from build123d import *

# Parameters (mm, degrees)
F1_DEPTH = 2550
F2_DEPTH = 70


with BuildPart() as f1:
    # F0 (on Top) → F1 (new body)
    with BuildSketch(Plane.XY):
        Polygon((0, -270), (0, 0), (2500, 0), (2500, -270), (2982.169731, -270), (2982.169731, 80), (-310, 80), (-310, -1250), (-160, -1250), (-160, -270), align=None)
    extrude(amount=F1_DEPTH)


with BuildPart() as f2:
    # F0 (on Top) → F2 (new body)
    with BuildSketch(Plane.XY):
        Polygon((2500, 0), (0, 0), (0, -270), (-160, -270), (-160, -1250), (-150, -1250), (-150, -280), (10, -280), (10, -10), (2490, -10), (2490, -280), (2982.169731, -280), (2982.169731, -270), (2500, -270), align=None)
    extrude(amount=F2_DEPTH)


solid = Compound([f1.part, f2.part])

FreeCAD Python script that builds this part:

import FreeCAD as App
import Part
import Sketcher

V = App.Vector
Q = App.Units.Quantity

doc = App.newDocument("Part")
params = doc.addObject("Spreadsheet::Sheet", "Params")
for row, (alias, value) in enumerate([
    ("sketch1_width", "2500 mm"),
    ("sketch1_width2", "150 mm"),
    ("sketch1_width3", "160 mm"),
    ("sketch1_height", "270 mm"),
    ("sketch1_height2", "350 mm"),
    ("pad1_length", "2550 mm"),
    ("sketch2_width", "2500 mm"),
    ("sketch2_width2", "160 mm"),
    ("sketch2_width3", "10 mm"),
    ("sketch2_width4", "2480 mm"),
    ("sketch2_height", "270 mm"),
    ("pad2_length", "70 mm"),
], start=1):
    params.set(f"A{row}", alias)
    params.set(f"B{row}", "=" + value)
    params.setAlias(f"B{row}", alias)

body = doc.addObject("PartDesign::Body", "Body")

# Sketch on XY plane
sketch1 = body.newObject("Sketcher::SketchObject", "Sketch")
sketch1.AttachmentSupport = (doc.getObject("XY_Plane"), [""])
sketch1.MapMode = "FlatFace"
sketch1.addGeometry([
    Part.LineSegment(V(0, -270, 0), V(0, 0, 0)),  # 0
    Part.LineSegment(V(0, 0, 0), V(2500, 0, 0)),  # 1
    Part.LineSegment(V(2500, 0, 0), V(2500, -270, 0)),  # 2
    Part.LineSegment(V(2500, -270, 0), V(2982, -270, 0)),  # 3
    Part.LineSegment(V(2982, -270, 0), V(2982, 80, 0)),  # 4
    Part.LineSegment(V(2982, 80, 0), V(-310, 80, 0)),  # 5
    Part.LineSegment(V(-310, 80, 0), V(-310, -1250, 0)),  # 6
    Part.LineSegment(V(-310, -1250, 0), V(-160, -1250, 0)),  # 7
    Part.LineSegment(V(-160, -1250, 0), V(-160, -270, 0)),  # 8
    Part.LineSegment(V(-160, -270, 0), V(0, -270, 0)),  # 9
], False)
sketch1.addConstraint([
    Sketcher.Constraint("Coincident", 0, 2, 1, 1),
    Sketcher.Constraint("Coincident", 1, 2, 2, 1),
    Sketcher.Constraint("Coincident", 2, 2, 3, 1),
    Sketcher.Constraint("Coincident", 3, 2, 4, 1),
    Sketcher.Constraint("Coincident", 4, 2, 5, 1),
    Sketcher.Constraint("Coincident", 5, 2, 6, 1),
    Sketcher.Constraint("Coincident", 6, 2, 7, 1),
    Sketcher.Constraint("Coincident", 7, 2, 8, 1),
    Sketcher.Constraint("Coincident", 8, 2, 9, 1),
    Sketcher.Constraint("Coincident", 9, 2, 0, 1),
    Sketcher.Constraint("Vertical", 0),
    Sketcher.Constraint("Horizontal", 1),
    Sketcher.Constraint("Vertical", 2),
    Sketcher.Constraint("Horizontal", 3),
    Sketcher.Constraint("Vertical", 4),
    Sketcher.Constraint("Horizontal", 5),
    Sketcher.Constraint("Vertical", 6),
    Sketcher.Constraint("Horizontal", 7),
    Sketcher.Constraint("Vertical", 8),
    Sketcher.Constraint("Horizontal", 9),
    Sketcher.Constraint("Coincident", 0, 2, -1, 1),
    Sketcher.Constraint("Horizontal", 3, 2, 8, 2),
    Sketcher.Constraint("DistanceX", 1, 1, 1, 2, Q("2500 mm")),
    Sketcher.Constraint("DistanceX", 7, 1, 7, 2, Q("150 mm")),
    Sketcher.Constraint("DistanceX", 9, 1, 9, 2, Q("160 mm")),
    Sketcher.Constraint("DistanceY", 0, 1, 0, 2, Q("270 mm")),
    Sketcher.Constraint("DistanceY", 4, 1, 4, 2, Q("350 mm")),
    Sketcher.Constraint("DistanceY", 6, 2, 6, 1, Q("1330 mm")),
    Sketcher.Constraint("DistanceX", 3, 1, 3, 2, Q("482.169731 mm")),
])
sketch1.setExpression("Constraints[22]", "Params.sketch1_width")
sketch1.setExpression("Constraints[23]", "Params.sketch1_width2")
sketch1.setExpression("Constraints[24]", "Params.sketch1_width3")
sketch1.setExpression("Constraints[25]", "Params.sketch1_height")
sketch1.setExpression("Constraints[26]", "Params.sketch1_height2")
pad1 = body.newObject("PartDesign::Pad", "Pad")
pad1.Profile = sketch1
pad1.setExpression("Length", "Params.pad1_length")
body2 = doc.addObject("PartDesign::Body", "Body001")

# Sketch on XY plane
sketch2 = body2.newObject("Sketcher::SketchObject", "Sketch001")
sketch2.AttachmentSupport = (doc.getObject("XY_Plane001"), [""])
sketch2.MapMode = "FlatFace"
sketch2.addGeometry([
    Part.LineSegment(V(2500, 0, 0), V(0, 0, 0)),  # 0
    Part.LineSegment(V(0, 0, 0), V(0, -270, 0)),  # 1
    Part.LineSegment(V(0, -270, 0), V(-160, -270, 0)),  # 2
    Part.LineSegment(V(-160, -270, 0), V(-160, -1250, 0)),  # 3
    Part.LineSegment(V(-160, -1250, 0), V(-150, -1250, 0)),  # 4
    Part.LineSegment(V(-150, -1250, 0), V(-150, -280, 0)),  # 5
    Part.LineSegment(V(-150, -280, 0), V(10, -280, 0)),  # 6
    Part.LineSegment(V(10, -280, 0), V(10, -10, 0)),  # 7
    Part.LineSegment(V(10, -10, 0), V(2490, -10, 0)),  # 8
    Part.LineSegment(V(2490, -10, 0), V(2490, -280, 0)),  # 9
    Part.LineSegment(V(2490, -280, 0), V(2982, -280, 0)),  # 10
    Part.LineSegment(V(2982, -280, 0), V(2982, -270, 0)),  # 11
    Part.LineSegment(V(2982, -270, 0), V(2500, -270, 0)),  # 12
    Part.LineSegment(V(2500, -270, 0), V(2500, 0, 0)),  # 13
], False)
sketch2.addConstraint([
    Sketcher.Constraint("Coincident", 0, 2, 1, 1),
    Sketcher.Constraint("Coincident", 1, 2, 2, 1),
    Sketcher.Constraint("Coincident", 2, 2, 3, 1),
    Sketcher.Constraint("Coincident", 3, 2, 4, 1),
    Sketcher.Constraint("Coincident", 4, 2, 5, 1),
    Sketcher.Constraint("Coincident", 5, 2, 6, 1),
    Sketcher.Constraint("Coincident", 6, 2, 7, 1),
    Sketcher.Constraint("Coincident", 7, 2, 8, 1),
    Sketcher.Constraint("Coincident", 8, 2, 9, 1),
    Sketcher.Constraint("Coincident", 9, 2, 10, 1),
    Sketcher.Constraint("Coincident", 10, 2, 11, 1),
    Sketcher.Constraint("Coincident", 11, 2, 12, 1),
    Sketcher.Constraint("Coincident", 12, 2, 13, 1),
    Sketcher.Constraint("Coincident", 13, 2, 0, 1),
    Sketcher.Constraint("Horizontal", 0),
    Sketcher.Constraint("Vertical", 1),
    Sketcher.Constraint("Horizontal", 2),
    Sketcher.Constraint("Vertical", 3),
    Sketcher.Constraint("Horizontal", 4),
    Sketcher.Constraint("Vertical", 5),
    Sketcher.Constraint("Horizontal", 6),
    Sketcher.Constraint("Vertical", 7),
    Sketcher.Constraint("Horizontal", 8),
    Sketcher.Constraint("Vertical", 9),
    Sketcher.Constraint("Horizontal", 10),
    Sketcher.Constraint("Vertical", 11),
    Sketcher.Constraint("Horizontal", 12),
    Sketcher.Constraint("Vertical", 13),
    Sketcher.Constraint("Coincident", 0, 2, -1, 1),
    Sketcher.Constraint("Horizontal", 6, 2, 9, 2),
    Sketcher.Constraint("Horizontal", 2, 2, 11, 2),
    Sketcher.Constraint("Equal", 2, 6),
    Sketcher.Constraint("Equal", 1, 7),
    Sketcher.Constraint("Equal", 4, 11),
    Sketcher.Constraint("DistanceX", 0, 2, 0, 1, Q("2500 mm")),
    Sketcher.Constraint("DistanceX", 2, 2, 2, 1, Q("160 mm")),
    Sketcher.Constraint("DistanceX", 4, 1, 4, 2, Q("10 mm")),
    Sketcher.Constraint("DistanceX", 8, 1, 8, 2, Q("2480 mm")),
    Sketcher.Constraint("DistanceY", 1, 2, 1, 1, Q("270 mm")),
    Sketcher.Constraint("DistanceY", 3, 2, 3, 1, Q("980 mm")),
    Sketcher.Constraint("DistanceX", 10, 1, 10, 2, Q("492.169731 mm")),
])
sketch2.setExpression("Constraints[34]", "Params.sketch2_width")
sketch2.setExpression("Constraints[35]", "Params.sketch2_width2")
sketch2.setExpression("Constraints[36]", "Params.sketch2_width3")
sketch2.setExpression("Constraints[37]", "Params.sketch2_width4")
sketch2.setExpression("Constraints[38]", "Params.sketch2_height")
pad2 = body2.newObject("PartDesign::Pad", "Pad001")
pad2.Profile = sketch2
pad2.setExpression("Length", "Params.pad2_length")

doc.recompute()
